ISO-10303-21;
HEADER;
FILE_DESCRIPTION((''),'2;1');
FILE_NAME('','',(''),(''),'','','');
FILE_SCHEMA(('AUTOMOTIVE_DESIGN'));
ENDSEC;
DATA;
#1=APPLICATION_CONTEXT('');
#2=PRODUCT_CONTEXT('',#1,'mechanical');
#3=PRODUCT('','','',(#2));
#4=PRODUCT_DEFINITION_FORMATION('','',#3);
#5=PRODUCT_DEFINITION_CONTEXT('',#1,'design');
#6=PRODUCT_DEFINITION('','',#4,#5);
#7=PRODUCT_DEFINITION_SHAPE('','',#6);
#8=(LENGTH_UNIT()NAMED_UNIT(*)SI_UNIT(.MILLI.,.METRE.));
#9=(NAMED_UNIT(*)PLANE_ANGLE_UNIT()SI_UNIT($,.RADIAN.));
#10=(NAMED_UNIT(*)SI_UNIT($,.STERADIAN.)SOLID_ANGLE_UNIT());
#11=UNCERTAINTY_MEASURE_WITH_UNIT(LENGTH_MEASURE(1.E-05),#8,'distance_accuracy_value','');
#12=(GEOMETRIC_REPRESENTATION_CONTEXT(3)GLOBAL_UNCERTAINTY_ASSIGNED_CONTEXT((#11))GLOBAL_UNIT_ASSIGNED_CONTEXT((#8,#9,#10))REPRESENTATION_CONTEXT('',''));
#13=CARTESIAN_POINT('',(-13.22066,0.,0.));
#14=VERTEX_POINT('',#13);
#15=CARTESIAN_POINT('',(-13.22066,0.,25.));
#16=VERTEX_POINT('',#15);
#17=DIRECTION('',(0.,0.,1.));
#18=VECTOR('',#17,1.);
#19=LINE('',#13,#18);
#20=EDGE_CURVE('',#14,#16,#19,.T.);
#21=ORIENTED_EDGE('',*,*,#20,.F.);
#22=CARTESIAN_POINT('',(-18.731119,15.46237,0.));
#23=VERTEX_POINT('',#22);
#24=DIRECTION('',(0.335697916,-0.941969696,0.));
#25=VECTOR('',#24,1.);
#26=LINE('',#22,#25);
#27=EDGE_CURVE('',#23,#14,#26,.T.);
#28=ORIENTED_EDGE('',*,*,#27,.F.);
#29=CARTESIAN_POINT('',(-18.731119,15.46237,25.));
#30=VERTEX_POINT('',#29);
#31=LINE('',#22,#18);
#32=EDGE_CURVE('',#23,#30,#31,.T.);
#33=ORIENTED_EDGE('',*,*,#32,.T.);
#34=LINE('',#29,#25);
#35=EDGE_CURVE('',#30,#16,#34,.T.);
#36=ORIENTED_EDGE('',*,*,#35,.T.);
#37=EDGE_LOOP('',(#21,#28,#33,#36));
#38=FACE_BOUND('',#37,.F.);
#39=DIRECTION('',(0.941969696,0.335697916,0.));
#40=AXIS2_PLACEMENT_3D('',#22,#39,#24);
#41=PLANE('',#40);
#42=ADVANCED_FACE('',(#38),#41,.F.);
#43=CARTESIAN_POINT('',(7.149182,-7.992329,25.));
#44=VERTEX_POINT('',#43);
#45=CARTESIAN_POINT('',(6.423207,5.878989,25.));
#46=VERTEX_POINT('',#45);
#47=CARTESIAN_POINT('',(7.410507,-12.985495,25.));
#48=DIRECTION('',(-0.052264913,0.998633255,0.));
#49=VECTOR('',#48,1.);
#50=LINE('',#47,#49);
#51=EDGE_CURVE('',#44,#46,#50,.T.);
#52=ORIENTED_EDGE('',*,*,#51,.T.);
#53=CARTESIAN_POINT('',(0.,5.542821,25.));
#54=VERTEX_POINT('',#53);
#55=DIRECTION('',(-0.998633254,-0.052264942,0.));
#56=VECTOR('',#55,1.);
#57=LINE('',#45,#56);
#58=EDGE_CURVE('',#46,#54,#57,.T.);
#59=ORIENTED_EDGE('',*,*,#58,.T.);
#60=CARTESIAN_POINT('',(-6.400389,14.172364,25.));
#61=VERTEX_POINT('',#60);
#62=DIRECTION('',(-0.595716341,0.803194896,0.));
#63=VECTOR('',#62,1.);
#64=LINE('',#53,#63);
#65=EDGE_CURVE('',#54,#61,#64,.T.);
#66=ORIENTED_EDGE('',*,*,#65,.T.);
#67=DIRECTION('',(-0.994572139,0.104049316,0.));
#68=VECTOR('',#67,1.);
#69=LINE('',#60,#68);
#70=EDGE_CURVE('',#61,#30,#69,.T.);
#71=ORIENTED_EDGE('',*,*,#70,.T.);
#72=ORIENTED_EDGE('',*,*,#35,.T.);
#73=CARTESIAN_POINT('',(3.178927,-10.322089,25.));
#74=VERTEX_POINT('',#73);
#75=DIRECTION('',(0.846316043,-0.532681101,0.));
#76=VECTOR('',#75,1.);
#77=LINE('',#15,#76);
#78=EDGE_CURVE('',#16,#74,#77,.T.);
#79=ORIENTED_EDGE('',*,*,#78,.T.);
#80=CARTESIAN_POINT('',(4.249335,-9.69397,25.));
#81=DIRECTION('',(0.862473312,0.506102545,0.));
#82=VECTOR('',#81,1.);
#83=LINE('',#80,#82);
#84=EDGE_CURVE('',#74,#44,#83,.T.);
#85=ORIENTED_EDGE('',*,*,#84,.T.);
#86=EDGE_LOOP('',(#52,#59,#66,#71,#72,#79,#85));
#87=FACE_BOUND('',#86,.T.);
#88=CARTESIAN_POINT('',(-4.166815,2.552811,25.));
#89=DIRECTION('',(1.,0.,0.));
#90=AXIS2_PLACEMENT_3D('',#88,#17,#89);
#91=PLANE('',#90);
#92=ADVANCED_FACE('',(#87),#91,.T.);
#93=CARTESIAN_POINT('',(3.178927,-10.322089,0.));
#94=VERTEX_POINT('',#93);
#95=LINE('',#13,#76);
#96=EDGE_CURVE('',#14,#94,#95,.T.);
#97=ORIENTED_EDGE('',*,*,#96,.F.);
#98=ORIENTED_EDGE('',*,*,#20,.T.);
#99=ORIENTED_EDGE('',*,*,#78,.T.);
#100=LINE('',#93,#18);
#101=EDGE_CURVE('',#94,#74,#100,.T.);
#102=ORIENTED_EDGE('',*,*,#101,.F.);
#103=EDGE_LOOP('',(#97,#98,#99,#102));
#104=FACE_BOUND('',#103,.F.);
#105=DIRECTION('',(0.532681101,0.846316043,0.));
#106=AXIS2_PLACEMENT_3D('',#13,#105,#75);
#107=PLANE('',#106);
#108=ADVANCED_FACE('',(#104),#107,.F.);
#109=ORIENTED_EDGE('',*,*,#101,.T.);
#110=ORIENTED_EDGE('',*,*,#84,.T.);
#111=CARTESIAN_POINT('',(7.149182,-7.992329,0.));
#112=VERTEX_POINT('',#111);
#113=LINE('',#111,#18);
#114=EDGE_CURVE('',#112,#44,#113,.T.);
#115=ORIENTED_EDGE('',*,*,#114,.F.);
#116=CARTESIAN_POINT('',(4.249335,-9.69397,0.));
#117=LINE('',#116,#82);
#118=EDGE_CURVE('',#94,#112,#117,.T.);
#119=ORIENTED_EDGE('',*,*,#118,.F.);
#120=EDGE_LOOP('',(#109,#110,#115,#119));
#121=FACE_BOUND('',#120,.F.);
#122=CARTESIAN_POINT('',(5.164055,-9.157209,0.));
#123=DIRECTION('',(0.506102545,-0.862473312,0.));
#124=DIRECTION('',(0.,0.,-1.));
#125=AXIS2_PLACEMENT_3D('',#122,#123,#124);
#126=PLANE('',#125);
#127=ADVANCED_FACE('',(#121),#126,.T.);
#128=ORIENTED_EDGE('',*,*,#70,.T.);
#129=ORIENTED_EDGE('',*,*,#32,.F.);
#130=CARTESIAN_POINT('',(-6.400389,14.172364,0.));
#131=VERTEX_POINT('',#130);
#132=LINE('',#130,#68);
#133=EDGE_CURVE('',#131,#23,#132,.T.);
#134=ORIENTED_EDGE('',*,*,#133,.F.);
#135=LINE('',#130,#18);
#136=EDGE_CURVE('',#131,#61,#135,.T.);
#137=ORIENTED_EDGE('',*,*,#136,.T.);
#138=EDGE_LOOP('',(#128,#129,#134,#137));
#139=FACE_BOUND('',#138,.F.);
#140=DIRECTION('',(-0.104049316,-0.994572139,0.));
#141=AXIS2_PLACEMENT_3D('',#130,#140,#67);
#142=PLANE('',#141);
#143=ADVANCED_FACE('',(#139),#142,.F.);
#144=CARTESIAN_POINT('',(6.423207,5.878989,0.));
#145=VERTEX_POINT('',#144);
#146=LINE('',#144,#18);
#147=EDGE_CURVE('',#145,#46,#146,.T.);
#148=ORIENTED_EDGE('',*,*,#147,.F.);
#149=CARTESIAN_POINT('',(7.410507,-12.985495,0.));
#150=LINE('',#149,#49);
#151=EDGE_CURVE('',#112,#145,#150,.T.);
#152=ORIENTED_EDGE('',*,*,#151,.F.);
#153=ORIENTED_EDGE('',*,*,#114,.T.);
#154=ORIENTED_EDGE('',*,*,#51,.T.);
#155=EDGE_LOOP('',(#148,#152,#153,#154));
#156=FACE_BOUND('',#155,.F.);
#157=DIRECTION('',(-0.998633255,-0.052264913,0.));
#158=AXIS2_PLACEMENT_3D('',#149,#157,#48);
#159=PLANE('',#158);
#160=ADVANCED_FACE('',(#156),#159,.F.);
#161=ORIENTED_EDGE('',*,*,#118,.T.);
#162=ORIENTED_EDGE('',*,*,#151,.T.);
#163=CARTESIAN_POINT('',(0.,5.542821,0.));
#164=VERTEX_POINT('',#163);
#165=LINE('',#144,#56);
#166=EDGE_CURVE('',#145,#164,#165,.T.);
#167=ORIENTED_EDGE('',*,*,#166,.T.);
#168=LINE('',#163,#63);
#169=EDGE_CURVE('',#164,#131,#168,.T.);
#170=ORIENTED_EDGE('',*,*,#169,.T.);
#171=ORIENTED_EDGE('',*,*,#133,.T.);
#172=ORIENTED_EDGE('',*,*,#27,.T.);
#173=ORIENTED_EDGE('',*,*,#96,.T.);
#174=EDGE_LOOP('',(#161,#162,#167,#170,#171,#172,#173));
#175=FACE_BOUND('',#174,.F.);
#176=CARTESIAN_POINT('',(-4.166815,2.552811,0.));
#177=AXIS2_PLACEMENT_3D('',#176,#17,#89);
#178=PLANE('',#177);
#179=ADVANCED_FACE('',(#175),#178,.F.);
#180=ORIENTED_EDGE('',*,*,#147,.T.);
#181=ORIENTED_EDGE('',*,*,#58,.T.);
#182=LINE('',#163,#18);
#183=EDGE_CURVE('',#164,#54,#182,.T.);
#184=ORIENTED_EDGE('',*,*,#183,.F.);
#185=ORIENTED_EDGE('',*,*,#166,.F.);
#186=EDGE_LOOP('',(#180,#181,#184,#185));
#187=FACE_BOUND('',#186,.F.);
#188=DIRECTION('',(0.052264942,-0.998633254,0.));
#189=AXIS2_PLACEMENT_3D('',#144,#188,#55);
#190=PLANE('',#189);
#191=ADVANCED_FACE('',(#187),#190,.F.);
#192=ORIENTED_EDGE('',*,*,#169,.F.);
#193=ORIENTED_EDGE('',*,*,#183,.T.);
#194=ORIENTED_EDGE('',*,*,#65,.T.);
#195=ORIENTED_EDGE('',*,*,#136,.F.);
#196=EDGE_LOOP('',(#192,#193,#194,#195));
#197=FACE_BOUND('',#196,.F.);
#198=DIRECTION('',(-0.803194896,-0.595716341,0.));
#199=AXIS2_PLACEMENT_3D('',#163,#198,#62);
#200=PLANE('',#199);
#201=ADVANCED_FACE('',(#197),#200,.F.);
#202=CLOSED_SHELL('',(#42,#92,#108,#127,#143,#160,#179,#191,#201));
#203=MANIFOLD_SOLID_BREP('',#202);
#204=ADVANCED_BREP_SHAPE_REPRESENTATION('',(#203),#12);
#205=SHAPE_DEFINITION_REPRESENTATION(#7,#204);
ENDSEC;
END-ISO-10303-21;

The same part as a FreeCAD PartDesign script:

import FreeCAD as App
import Part
import Sketcher

V = App.Vector
Q = App.Units.Quantity


def edges_at(feature, points):
    """Names of the edges that pass closest to the given points."""
    edges = feature.Shape.Edges
    near = lambda p: min(range(len(edges)), key=lambda i: edges[i].distToShape(Part.Vertex(*p))[0])
    return sorted({f"Edge{near(p) + 1}" for p in points})


def add_polygon(sketch, points):
    """Adds a closed chain of lines whose ends are joined by coincident constraints."""
    first, n = sketch.GeometryCount, len(points)
    for a, b in zip(points, points[1:] + points[:1]):
        sketch.addGeometry(Part.LineSegment(App.Vector(*a, 0), App.Vector(*b, 0)), False)
    for i in range(n):
        sketch.addConstraint(Sketcher.Constraint("Coincident", first + i, 2, first + (i + 1) % n, 1))

doc = App.newDocument("Part")
body = doc.addObject("PartDesign::Body", "Body")

sketch1 = body.newObject("Sketcher::SketchObject", "Sketch")
sketch1.AttachmentSupport = (doc.getObject("XY_Plane"), [""])
sketch1.MapMode = "FlatFace"
add_polygon(sketch1, [(-19, 15), (-13, 0), (7, -13), (6, 6), (0, 6), (-6, 14)])
sketch1.addConstraint(Sketcher.Constraint("PointOnObject", 0, 2, -1))
sketch1.addConstraint(Sketcher.Constraint("PointOnObject", 3, 2, -2))
sketch1.addConstraint(Sketcher.Constraint("Perpendicular", 2, 3))
sketch1.addConstraint(Sketcher.Constraint("DistanceX", 2, 2, 1, 2, Q("0.9873 mm")))
sketch1.addConstraint(Sketcher.Constraint("Distance", 4, Q("10.744021 mm")))
sketch1.addConstraint(Sketcher.Constraint("DistanceX", 0, 2, -1, 1, Q("13.22066 mm")))
sketch1.addConstraint(Sketcher.Constraint("DistanceY", -1, 1, 2, 2, Q("5.878989 mm")))
sketch1.addConstraint(Sketcher.Constraint("DistanceY", -1, 1, 3, 2, Q("5.542821 mm")))
sketch1.addConstraint(Sketcher.Constraint("DistanceX", 4, 2, -1, 1, Q("6.400389 mm")))
sketch1.addConstraint(Sketcher.Constraint("DistanceX", 5, 2, -1, 1, Q("18.731119 mm")))
sketch1.addConstraint(Sketcher.Constraint("DistanceY", -1, 1, 5, 2, Q("15.46237 mm")))
sketch1.addConstraint(Sketcher.Constraint("DistanceY", 1, 2, 4, 2, Q("27.157859 mm")))
pad1 = body.newObject("PartDesign::Pad", "Pad")
pad1.Profile = sketch1
pad1.Length = 25
doc.recompute()

chamfer = body.newObject("PartDesign::Chamfer", "Chamfer")
chamfer.Base = (pad1, edges_at(pad1, [(7.411, -12.985, 12.5)]))
chamfer.Size = 5

doc.recompute()
